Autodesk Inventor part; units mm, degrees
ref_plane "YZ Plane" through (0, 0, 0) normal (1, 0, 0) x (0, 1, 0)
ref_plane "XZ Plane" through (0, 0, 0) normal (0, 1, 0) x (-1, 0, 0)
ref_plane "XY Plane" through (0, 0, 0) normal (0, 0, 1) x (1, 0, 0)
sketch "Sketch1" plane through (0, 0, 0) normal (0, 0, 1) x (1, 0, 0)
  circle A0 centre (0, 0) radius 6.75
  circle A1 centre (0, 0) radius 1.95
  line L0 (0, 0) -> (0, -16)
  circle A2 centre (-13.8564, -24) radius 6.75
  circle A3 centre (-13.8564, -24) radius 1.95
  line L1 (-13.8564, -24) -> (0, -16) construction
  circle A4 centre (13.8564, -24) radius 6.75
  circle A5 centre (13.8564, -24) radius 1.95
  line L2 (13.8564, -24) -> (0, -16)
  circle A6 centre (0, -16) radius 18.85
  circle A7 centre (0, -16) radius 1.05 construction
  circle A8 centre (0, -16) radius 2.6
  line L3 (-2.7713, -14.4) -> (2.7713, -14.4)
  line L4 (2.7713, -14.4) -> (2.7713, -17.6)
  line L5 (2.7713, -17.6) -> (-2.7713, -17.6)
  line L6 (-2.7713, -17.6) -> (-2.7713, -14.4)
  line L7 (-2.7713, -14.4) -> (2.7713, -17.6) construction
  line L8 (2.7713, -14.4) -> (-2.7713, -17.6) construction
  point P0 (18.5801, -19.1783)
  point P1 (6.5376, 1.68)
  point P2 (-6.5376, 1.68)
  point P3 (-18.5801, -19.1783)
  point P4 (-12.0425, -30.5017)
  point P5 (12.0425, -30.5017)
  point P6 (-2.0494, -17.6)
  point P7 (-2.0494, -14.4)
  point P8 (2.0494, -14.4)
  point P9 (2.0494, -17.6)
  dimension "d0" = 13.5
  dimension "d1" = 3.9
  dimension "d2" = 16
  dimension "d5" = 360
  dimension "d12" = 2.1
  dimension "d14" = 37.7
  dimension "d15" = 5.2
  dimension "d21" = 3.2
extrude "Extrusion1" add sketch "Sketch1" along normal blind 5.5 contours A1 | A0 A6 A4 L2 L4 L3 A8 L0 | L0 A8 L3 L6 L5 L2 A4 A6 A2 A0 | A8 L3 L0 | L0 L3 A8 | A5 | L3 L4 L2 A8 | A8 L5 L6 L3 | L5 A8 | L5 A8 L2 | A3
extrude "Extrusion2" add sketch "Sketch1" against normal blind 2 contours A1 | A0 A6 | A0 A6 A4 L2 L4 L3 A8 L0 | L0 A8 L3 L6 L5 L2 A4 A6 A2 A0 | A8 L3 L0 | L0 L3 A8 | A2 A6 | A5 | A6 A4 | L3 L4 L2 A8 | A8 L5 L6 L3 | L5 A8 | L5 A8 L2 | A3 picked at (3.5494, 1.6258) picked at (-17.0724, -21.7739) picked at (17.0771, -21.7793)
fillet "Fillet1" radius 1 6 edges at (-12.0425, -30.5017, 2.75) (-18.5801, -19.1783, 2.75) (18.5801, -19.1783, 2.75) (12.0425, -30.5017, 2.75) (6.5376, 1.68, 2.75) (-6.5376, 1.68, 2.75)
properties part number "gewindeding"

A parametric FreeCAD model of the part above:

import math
import FreeCAD as App
import Part
import Sketcher
from FreeCAD import Vector
Q = App.Units.Quantity


def edges_at(feature, points):
    """Names of the edges that pass closest to the given points."""
    edges = feature.Shape.Edges
    near = lambda p: min(range(len(edges)), key=lambda i: edges[i].distToShape(Part.Vertex(*p))[0])
    return sorted({f"Edge{near(p) + 1}" for p in points})

doc = App.newDocument("Part")
params = doc.addObject("Spreadsheet::Sheet", "Params")
for row, (alias, value) in enumerate([
    ("sketch1_diameter", "3.9 mm"),
    ("sketch1_radius", "2.6 mm"),
    ("sketch1_radius2", "6.75 mm"),
    ("sketch1_radius3", "18.85 mm"),
    ("pad1_length", "5.5 mm"),
    ("sketch2_diameter", "37.7 mm"),
    ("sketch2_radius", "2.6 mm"),
    ("pad2_length", "2 mm"),
    ("fillet_radius", "1 mm"),
], start=1):
    params.set(f"A{row}", alias)
    params.set(f"B{row}", "=" + value)
    params.setAlias(f"B{row}", alias)

body = doc.addObject("PartDesign::Body", "Body")
body.AllowCompound = True

sketch1 = body.newObject("Sketcher::SketchObject", "Sketch")
sketch1.AttachmentSupport = (doc.getObject("XY_Plane"), [""])
sketch1.MapMode = "FlatFace"
sketch1.addGeometry([
    Part.Circle(Vector(0, 0, 0), Vector(0, 0, 1), 1.9),
    Part.ArcOfCircle(Part.Circle(Vector(0, 0, 0), Vector(0, 0, 1), 6.8), math.radians(166), math.radians(374)),
    Part.ArcOfCircle(Part.Circle(Vector(0, -16, 0), Vector(0, 0, 1), 18.9), math.radians(110), math.radians(190)),
    Part.ArcOfCircle(Part.Circle(Vector(-13.9, -24, 0), Vector(0, 0, 1), 6.8), math.radians(-74), math.radians(134)),
    Part.ArcOfCircle(Part.Circle(Vector(0, -16, 0), Vector(0, 0, 1), 18.9), math.radians(-130), math.radians(-50)),
    Part.ArcOfCircle(Part.Circle(Vector(13.9, -24, 0), Vector(0, 0, 1), 6.8), math.radians(46), math.radians(254)),
    Part.ArcOfCircle(Part.Circle(Vector(0, -16, 0), Vector(0, 0, 1), 18.9), math.radians(-10), math.radians(70)),
    Part.LineSegment(Vector(2, -17.6, 0), Vector(-2, -17.6, 0)),
    Part.ArcOfCircle(Part.Circle(Vector(0, -16, 0), Vector(0, 0, 1), 2.6), math.radians(142), math.radians(218)),
    Part.LineSegment(Vector(-2, -14.4, 0), Vector(2, -14.4, 0)),
    Part.ArcOfCircle(Part.Circle(Vector(0, -16, 0), Vector(0, 0, 1), 2.6), math.radians(-38), math.radians(38)),
    Part.Circle(Vector(13.9, -24, 0), Vector(0, 0, 1), 1.9),
    Part.Circle(Vector(-13.9, -24, 0), Vector(0, 0, 1), 1.9),
], False)
sketch1.addConstraint([
    Sketcher.Constraint("Coincident", 1, 1, 2, 1),
    Sketcher.Constraint("Coincident", 2, 2, 3, 2),
    Sketcher.Constraint("Coincident", 3, 1, 4, 1),
    Sketcher.Constraint("Coincident", 4, 2, 5, 2),
    Sketcher.Constraint("Coincident", 5, 1, 6, 1),
    Sketcher.Constraint("Coincident", 6, 2, 1, 2),
    Sketcher.Constraint("Coincident", 7, 2, 8, 2),
    Sketcher.Constraint("Coincident", 8, 1, 9, 1),
    Sketcher.Constraint("Coincident", 9, 2, 10, 2),
    Sketcher.Constraint("Coincident", 10, 1, 7, 1),
    Sketcher.Constraint("Horizontal", 7),
    Sketcher.Constraint("Horizontal", 9),
    Sketcher.Constraint("Coincident", 0, 3, -1, 1),
    Sketcher.Constraint("Coincident", 1, 3, -1, 1),
    Sketcher.Constraint("Coincident", 4, 3, 2, 3),
    Sketcher.Constraint("Coincident", 6, 3, 2, 3),
    Sketcher.Constraint("Coincident", 8, 3, 2, 3),
    Sketcher.Constraint("Coincident", 10, 3, 2, 3),
    Sketcher.Constraint("Coincident", 11, 3, 5, 3),
    Sketcher.Constraint("Coincident", 12, 3, 3, 3),
    Sketcher.Constraint("Equal", 1, 3),
    Sketcher.Constraint("Equal", 2, 4),
    Sketcher.Constraint("Equal", 3, 5),
    Sketcher.Constraint("Equal", 4, 6),
    Sketcher.Constraint("Equal", 8, 10),
    Sketcher.Constraint("Equal", 0, 11),
    Sketcher.Constraint("Equal", 11, 12),
    Sketcher.Constraint("Symmetric", 3, 3, 5, 3, -2),
    Sketcher.Constraint("PointOnObject", 2, 3, -2),
    Sketcher.Constraint("Vertical", 7, 2, 8, 1),
    Sketcher.Constraint("Diameter", 0, Q("3.9 mm")),
    Sketcher.Constraint("Radius", 8, Q("2.6 mm")),
    Sketcher.Constraint("Radius", 1, Q("6.75 mm")),
    Sketcher.Constraint("Radius", 2, Q("18.85 mm")),
    Sketcher.Constraint("DistanceY", 2, 3, -1, 1, Q("16 mm")),
    Sketcher.Constraint("DistanceY", 3, 3, -1, 1, Q("24 mm")),
    Sketcher.Constraint("DistanceY", 7, 2, -1, 1, Q("17.6 mm")),
    Sketcher.Constraint("DistanceX", 3, 3, -1, 1, Q("13.8564 mm")),
])
sketch1.setExpression("Constraints[30]", "Params.sketch1_diameter")
sketch1.setExpression("Constraints[31]", "Params.sketch1_radius")
sketch1.setExpression("Constraints[32]", "Params.sketch1_radius2")
sketch1.setExpression("Constraints[33]", "Params.sketch1_radius3")
pad1 = body.newObject("PartDesign::Pad", "Pad")
pad1.Profile = sketch1
pad1.setExpression("Length", "Params.pad1_length")

sketch2 = body.newObject("Sketcher::SketchObject", "Sketch001")
sketch2.AttachmentSupport = (doc.getObject("XY_Plane"), [""])
sketch2.MapMode = "FlatFace"
sketch2.addGeometry([
    Part.Circle(Vector(0, -16, 0), Vector(0, 0, 1), 18.9),
    Part.LineSegment(Vector(2, -17.6, 0), Vector(-2, -17.6, 0)),
    Part.ArcOfCircle(Part.Circle(Vector(0, -16, 0), Vector(0, 0, 1), 2.6), math.radians(142), math.radians(218)),
    Part.LineSegment(Vector(-2, -14.4, 0), Vector(2, -14.4, 0)),
    Part.ArcOfCircle(Part.Circle(Vector(0, -16, 0), Vector(0, 0, 1), 2.6), math.radians(-38), math.radians(38)),
], False)
sketch2.addConstraint([
    Sketcher.Constraint("Coincident", 1, 2, 2, 2),
    Sketcher.Constraint("Coincident", 2, 1, 3, 1),
    Sketcher.Constraint("Coincident", 3, 2, 4, 2),
    Sketcher.Constraint("Coincident", 4, 1, 1, 1),
    Sketcher.Constraint("Horizontal", 1),
    Sketcher.Constraint("Horizontal", 3),
    Sketcher.Constraint("Coincident", 2, 3, 0, 3),
    Sketcher.Constraint("Coincident", 4, 3, 0, 3),
    Sketcher.Constraint("Equal", 2, 4),
    Sketcher.Constraint("PointOnObject", 0, 3, -2),
    Sketcher.Constraint("Vertical", 1, 2, 2, 1),
    Sketcher.Constraint("Diameter", 0, Q("37.7 mm")),
    Sketcher.Constraint("Radius", 2, Q("2.6 mm")),
    Sketcher.Constraint("DistanceY", 0, 3, -1, 1, Q("16 mm")),
    Sketcher.Constraint("DistanceY", 1, 2, 2, 1, Q("3.2 mm")),
])
sketch2.setExpression("Constraints[11]", "Params.sketch2_diameter")
sketch2.setExpression("Constraints[12]", "Params.sketch2_radius")
pad2 = body.newObject("PartDesign::Pad", "Pad001")
pad2.Profile = sketch2
pad2.setExpression("Length", "Params.pad2_length")
pad2.Reversed = True
doc.recompute()

fillet = body.newObject("PartDesign::Fillet", "Fillet")
fillet.Base = (pad2, edges_at(pad2, [
    (-12.043, -30.502, 2.75),
    (-18.58, -19.178, 2.75),
    (18.58, -19.178, 2.75),
    (12.043, -30.502, 2.75),
    (6.538, 1.68, 2.75),
    (-6.538, 1.68, 2.75),
]))
fillet.setExpression("Radius", "Params.fillet_radius")

doc.recompute()
